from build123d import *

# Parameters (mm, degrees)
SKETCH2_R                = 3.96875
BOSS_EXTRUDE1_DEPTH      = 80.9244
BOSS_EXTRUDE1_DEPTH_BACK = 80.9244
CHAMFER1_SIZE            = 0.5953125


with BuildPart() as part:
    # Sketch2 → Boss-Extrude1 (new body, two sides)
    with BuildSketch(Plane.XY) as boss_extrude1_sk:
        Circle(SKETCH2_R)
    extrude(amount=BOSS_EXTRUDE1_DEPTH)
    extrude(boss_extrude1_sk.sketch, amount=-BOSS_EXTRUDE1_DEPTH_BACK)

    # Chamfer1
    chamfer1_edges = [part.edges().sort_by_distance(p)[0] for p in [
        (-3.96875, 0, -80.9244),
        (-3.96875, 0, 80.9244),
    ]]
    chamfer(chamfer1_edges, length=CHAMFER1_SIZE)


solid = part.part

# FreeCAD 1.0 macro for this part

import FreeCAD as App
import Part
import Sketcher
from FreeCAD import Vector
Q = App.Units.Quantity


def edges_at(feature, points):
    """Names of the edges that pass closest to the given points."""
    edges = feature.Shape.Edges
    near = lambda p: min(range(len(edges)), key=lambda i: edges[i].distToShape(Part.Vertex(*p))[0])
    return sorted({f"Edge{near(p) + 1}" for p in points})

doc = App.newDocument("Part")
body = doc.addObject("PartDesign::Body", "Body")

# Sketch on XY plane
sketch1 = body.newObject("Sketcher::SketchObject", "Sketch")
sketch1.AttachmentSupport = (doc.getObject("XY_Plane"), [""])
sketch1.MapMode = "FlatFace"
sketch1.addGeometry(Part.Circle(Vector(0, 0, 0), Vector(0, 0, 1), 3.96875), False)
sketch1.addConstraint(Sketcher.Constraint("Coincident", 0, 3, -1, 1))
sketch1.addConstraint(Sketcher.Constraint("Diameter", 0, Q("0.3125 in")))
pad1 = body.newObject("PartDesign::Pad", "Pad")
pad1.Profile = sketch1
pad1.Type = "TwoLengths"
pad1.Length = Q("3.186 in")
pad1.Length2 = Q("3.186 in")
doc.recompute()

chamfer = body.newObject("PartDesign::Chamfer", "Chamfer")
chamfer.Base = (pad1, edges_at(pad1, [(-3.969, 0, -80.924), (-3.969, 0, 80.924)]))
chamfer.Size = 0.595313

doc.recompute()
